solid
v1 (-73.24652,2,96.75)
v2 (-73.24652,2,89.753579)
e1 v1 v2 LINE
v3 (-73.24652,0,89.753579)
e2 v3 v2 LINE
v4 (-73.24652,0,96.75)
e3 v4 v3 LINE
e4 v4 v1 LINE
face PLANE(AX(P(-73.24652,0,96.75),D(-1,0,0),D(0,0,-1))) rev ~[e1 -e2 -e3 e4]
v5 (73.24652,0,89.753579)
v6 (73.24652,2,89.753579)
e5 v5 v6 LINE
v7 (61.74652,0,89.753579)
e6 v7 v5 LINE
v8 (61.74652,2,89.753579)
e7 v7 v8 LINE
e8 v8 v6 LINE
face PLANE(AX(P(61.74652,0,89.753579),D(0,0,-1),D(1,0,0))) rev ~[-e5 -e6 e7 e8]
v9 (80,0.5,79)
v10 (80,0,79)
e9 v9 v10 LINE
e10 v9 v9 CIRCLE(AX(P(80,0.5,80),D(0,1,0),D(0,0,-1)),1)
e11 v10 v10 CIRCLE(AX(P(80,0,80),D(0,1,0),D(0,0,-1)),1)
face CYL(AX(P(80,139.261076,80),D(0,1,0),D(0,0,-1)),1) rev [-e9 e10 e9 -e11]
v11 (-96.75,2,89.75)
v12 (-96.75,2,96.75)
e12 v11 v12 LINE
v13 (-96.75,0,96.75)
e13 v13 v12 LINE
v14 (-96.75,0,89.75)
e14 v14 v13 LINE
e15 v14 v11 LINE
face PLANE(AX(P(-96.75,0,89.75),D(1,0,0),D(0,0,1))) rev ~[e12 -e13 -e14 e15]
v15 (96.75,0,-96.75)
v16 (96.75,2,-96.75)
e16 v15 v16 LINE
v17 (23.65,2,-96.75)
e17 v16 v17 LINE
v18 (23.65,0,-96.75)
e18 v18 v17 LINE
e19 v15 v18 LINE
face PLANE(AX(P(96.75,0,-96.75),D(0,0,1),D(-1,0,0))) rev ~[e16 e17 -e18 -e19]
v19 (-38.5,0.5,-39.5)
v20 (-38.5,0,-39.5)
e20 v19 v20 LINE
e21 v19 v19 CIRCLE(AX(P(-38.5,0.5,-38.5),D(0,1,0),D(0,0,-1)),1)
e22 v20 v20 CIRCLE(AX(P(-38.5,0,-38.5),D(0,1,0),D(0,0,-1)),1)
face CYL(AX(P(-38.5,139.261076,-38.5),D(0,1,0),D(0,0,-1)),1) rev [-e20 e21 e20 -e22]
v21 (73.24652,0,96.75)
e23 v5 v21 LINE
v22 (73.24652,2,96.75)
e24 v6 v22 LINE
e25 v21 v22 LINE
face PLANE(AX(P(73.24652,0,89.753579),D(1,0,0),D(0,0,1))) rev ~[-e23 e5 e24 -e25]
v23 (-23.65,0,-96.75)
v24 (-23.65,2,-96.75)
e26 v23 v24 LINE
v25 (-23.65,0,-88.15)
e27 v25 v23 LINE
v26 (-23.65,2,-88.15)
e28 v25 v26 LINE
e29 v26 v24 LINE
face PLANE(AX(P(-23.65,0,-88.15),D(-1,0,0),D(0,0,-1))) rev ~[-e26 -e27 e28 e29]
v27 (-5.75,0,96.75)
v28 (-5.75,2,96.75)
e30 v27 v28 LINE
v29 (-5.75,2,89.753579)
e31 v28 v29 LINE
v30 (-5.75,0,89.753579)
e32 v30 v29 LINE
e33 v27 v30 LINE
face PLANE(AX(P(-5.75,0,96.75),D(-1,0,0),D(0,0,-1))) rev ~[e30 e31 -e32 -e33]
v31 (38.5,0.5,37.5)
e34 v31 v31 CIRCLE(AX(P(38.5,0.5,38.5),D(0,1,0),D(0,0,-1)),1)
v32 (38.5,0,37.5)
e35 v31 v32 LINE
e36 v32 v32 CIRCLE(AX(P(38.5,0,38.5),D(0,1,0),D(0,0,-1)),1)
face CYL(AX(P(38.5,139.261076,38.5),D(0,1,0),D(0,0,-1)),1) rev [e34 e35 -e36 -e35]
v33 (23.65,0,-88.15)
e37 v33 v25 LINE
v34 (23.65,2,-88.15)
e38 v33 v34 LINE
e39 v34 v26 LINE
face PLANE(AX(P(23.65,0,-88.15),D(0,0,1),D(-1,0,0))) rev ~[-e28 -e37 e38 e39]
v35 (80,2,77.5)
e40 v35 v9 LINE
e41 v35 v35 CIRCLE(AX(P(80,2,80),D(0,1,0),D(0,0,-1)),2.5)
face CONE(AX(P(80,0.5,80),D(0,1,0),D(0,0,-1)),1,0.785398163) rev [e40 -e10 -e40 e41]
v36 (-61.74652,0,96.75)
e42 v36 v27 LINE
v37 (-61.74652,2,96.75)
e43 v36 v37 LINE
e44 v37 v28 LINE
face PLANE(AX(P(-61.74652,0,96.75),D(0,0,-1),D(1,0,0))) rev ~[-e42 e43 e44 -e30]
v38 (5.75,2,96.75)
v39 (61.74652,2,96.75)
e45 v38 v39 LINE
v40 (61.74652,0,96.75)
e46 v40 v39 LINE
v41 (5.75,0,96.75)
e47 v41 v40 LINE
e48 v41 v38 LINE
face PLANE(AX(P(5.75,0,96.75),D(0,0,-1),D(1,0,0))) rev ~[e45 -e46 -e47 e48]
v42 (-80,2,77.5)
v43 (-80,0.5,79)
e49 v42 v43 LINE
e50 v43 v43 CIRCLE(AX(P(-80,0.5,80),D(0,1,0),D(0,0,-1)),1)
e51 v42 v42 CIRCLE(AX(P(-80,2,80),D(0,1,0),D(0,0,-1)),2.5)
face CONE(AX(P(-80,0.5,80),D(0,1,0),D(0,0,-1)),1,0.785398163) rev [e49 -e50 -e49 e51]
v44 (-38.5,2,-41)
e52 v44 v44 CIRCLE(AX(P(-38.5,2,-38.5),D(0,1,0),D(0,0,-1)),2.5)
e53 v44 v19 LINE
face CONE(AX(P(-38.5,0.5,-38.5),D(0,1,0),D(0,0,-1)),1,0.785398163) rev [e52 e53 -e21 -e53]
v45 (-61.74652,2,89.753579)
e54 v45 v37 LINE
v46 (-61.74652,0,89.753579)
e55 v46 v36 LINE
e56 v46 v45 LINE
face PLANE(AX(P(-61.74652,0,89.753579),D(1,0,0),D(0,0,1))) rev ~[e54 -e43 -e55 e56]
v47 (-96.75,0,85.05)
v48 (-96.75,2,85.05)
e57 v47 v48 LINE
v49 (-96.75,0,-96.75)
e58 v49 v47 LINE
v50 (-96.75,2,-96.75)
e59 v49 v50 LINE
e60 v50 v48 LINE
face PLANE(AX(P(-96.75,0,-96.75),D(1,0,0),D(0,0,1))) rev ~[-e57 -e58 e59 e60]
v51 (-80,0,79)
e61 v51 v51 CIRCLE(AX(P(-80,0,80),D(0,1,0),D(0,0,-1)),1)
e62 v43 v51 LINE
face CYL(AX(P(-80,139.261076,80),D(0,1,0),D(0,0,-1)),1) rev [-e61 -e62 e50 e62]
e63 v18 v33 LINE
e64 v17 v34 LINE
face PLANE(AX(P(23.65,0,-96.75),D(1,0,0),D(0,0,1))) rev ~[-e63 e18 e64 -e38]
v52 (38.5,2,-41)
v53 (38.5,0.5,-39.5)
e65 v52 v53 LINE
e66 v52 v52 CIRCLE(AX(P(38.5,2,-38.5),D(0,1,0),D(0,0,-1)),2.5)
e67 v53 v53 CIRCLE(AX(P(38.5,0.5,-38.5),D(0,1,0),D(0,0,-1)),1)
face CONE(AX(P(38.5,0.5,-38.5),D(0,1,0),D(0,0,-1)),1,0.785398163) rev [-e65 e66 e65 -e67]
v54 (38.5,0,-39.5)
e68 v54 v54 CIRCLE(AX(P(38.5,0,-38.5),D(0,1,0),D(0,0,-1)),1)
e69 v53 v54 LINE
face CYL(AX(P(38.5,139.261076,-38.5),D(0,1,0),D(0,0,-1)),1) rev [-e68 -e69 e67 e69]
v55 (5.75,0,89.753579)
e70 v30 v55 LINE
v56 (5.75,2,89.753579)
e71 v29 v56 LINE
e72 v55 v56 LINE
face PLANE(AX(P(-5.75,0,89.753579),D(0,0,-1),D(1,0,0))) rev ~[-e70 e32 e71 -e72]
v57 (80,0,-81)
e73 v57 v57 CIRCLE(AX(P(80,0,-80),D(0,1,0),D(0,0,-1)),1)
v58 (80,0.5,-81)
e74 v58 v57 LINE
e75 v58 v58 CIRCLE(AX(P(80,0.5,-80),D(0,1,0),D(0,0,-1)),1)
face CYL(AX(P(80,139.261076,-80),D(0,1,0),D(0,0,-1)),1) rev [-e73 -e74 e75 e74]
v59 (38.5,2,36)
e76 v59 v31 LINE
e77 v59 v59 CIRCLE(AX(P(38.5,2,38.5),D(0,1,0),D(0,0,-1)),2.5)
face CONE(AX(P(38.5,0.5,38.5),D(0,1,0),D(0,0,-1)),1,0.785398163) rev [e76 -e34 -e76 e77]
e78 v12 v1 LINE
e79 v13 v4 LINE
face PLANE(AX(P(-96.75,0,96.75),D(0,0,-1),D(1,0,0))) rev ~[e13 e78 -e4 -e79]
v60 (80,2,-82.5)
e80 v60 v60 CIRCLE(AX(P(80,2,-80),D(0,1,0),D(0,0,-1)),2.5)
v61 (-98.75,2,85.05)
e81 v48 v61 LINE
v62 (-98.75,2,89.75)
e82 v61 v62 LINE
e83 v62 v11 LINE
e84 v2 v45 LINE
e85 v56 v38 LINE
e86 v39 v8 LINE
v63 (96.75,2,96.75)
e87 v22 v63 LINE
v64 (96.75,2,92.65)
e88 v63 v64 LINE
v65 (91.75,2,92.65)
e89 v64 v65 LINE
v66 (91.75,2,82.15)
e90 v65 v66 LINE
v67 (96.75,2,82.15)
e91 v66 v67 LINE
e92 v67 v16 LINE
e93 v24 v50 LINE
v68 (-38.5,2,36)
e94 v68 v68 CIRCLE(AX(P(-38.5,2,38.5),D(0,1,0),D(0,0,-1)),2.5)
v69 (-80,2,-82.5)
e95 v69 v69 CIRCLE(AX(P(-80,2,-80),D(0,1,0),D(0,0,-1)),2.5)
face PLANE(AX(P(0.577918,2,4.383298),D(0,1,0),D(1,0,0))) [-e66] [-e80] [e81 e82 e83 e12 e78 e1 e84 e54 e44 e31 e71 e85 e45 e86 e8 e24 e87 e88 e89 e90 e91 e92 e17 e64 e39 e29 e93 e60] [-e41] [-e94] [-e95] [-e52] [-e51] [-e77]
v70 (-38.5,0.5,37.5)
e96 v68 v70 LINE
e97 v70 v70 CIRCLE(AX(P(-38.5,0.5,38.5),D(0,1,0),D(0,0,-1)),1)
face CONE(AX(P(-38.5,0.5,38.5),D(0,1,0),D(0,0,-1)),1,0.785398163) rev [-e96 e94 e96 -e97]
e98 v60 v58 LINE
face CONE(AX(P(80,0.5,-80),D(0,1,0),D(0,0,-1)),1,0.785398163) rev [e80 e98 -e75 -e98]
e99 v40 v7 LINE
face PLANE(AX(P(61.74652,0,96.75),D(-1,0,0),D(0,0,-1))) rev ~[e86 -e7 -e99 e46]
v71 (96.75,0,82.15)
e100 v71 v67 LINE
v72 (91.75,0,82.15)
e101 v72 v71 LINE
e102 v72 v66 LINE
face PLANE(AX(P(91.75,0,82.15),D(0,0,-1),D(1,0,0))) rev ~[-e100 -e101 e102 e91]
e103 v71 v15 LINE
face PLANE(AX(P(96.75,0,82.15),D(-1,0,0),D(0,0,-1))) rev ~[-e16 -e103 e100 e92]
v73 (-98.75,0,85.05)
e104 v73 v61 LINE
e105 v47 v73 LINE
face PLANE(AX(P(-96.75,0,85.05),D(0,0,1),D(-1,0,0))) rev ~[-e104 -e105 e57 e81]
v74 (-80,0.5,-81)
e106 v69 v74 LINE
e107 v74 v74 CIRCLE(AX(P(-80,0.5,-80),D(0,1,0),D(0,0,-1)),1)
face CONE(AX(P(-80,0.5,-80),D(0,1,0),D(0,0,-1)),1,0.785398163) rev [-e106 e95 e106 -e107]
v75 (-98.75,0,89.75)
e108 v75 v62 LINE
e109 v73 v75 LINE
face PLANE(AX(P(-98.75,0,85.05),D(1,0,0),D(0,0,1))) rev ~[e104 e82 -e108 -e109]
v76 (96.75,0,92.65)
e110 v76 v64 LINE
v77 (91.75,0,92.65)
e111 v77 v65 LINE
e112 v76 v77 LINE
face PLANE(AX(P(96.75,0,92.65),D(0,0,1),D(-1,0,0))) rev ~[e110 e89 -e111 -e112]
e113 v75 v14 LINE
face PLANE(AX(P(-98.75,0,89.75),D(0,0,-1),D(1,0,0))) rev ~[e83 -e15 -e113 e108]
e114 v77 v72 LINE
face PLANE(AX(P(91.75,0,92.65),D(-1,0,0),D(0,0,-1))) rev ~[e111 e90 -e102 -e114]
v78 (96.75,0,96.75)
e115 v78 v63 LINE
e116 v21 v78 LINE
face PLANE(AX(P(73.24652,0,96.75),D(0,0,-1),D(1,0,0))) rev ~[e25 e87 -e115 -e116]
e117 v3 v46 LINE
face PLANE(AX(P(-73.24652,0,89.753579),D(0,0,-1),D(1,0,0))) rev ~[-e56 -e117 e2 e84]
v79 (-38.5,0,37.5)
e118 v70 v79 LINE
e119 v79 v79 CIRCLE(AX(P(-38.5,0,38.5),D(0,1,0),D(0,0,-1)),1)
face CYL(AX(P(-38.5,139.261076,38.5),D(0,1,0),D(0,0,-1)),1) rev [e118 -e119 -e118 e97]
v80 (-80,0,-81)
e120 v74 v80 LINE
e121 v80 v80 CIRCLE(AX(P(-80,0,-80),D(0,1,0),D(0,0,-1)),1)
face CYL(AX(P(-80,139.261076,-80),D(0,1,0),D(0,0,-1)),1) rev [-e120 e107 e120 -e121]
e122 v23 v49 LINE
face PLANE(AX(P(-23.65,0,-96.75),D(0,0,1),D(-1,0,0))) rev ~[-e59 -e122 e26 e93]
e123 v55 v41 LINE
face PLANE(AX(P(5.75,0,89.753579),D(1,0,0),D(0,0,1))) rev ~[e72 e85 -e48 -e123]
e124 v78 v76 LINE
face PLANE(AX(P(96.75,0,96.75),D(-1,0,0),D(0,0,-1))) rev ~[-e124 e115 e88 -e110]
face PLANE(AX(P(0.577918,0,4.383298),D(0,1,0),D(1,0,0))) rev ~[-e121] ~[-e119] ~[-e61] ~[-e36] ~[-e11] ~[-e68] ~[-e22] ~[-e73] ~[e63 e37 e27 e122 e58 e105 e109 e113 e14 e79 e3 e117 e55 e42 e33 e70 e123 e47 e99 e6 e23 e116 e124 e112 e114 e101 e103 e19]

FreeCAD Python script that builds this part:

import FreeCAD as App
import Part
import Sketcher


def edges_at(feature, points):
    """Names of the edges that pass closest to the given points."""
    edges = feature.Shape.Edges
    near = lambda p: min(range(len(edges)), key=lambda i: edges[i].distToShape(Part.Vertex(*p))[0])
    return sorted({f"Edge{near(p) + 1}" for p in points})


def add_polygon(sketch, points):
    """Adds a closed chain of lines whose ends are joined by coincident constraints."""
    first, n = sketch.GeometryCount, len(points)
    for a, b in zip(points, points[1:] + points[:1]):
        sketch.addGeometry(Part.LineSegment(App.Vector(*a, 0), App.Vector(*b, 0)), False)
    for i in range(n):
        sketch.addConstraint(Sketcher.Constraint("Coincident", first + i, 2, first + (i + 1) % n, 1))

doc = App.newDocument("Part")
params = doc.addObject("Spreadsheet::Sheet", "Params")
for row, (alias, value) in enumerate([
    ("sketch1_width", "5 mm"),
    ("sketch1_width2", "2 mm"),
    ("sketch1_height", "7 mm"),
    ("sketch1_width3", "11.5 mm"),
    ("sketch1_width4", "73.1 mm"),
    ("pad1_length", "2 mm"),
    ("sketch2_diameter", "2 mm"),
    ("chamfer_size", "1.5 mm"),
], start=1):
    params.set(f"A{row}", alias)
    params.set(f"B{row}", "=" + value)
    params.setAlias(f"B{row}", alias)

body = doc.addObject("PartDesign::Body", "Body")

# Sketch on XZ plane
sketch1 = body.newObject("Sketcher::SketchObject", "Sketch")
sketch1.AttachmentSupport = (doc.getObject("XZ_Plane"), [""])
sketch1.MapMode = "FlatFace"
add_polygon(sketch1, [(5.8, 96.8), (61.7, 96.8), (61.7, 89.8), (73.2, 89.8), (73.2, 96.8), (96.8, 96.8), (96.8, 92.7), (91.8, 92.7), (91.8, 82.2), (96.8, 82.2), (96.8, -96.8), (23.6, -96.8), (23.6, -88.2), (-23.6, -88.2), (-23.6, -96.8), (-96.8, -96.8), (-96.8, 85), (-98.8, 85), (-98.8, 89.8), (-96.8, 89.8), (-96.8, 96.8), (-73.2, 96.8), (-73.2, 89.8), (-61.7, 89.8), (-61.7, 96.8), (-5.8, 96.8), (-5.8, 89.8), (5.8, 89.8)])  # lines 0-27
sketch1.addConstraint(Sketcher.Constraint("Horizontal", 0))
sketch1.addConstraint(Sketcher.Constraint("Vertical", 1))
sketch1.addConstraint(Sketcher.Constraint("Horizontal", 2))
sketch1.addConstraint(Sketcher.Constraint("Vertical", 3))
sketch1.addConstraint(Sketcher.Constraint("Horizontal", 4))
sketch1.addConstraint(Sketcher.Constraint("Vertical", 5))
sketch1.addConstraint(Sketcher.Constraint("Horizontal", 6))
sketch1.addConstraint(Sketcher.Constraint("Vertical", 7))
sketch1.addConstraint(Sketcher.Constraint("Horizontal", 8))
sketch1.addConstraint(Sketcher.Constraint("Vertical", 9))
sketch1.addConstraint(Sketcher.Constraint("Horizontal", 10))
sketch1.addConstraint(Sketcher.Constraint("Vertical", 11))
sketch1.addConstraint(Sketcher.Constraint("Horizontal", 12))
sketch1.addConstraint(Sketcher.Constraint("Vertical", 13))
sketch1.addConstraint(Sketcher.Constraint("Horizontal", 14))
sketch1.addConstraint(Sketcher.Constraint("Vertical", 15))
sketch1.addConstraint(Sketcher.Constraint("Horizontal", 16))
sketch1.addConstraint(Sketcher.Constraint("Vertical", 17))
sketch1.addConstraint(Sketcher.Constraint("Horizontal", 18))
sketch1.addConstraint(Sketcher.Constraint("Vertical", 19))
sketch1.addConstraint(Sketcher.Constraint("Horizontal", 20))
sketch1.addConstraint(Sketcher.Constraint("Vertical", 21))
sketch1.addConstraint(Sketcher.Constraint("Horizontal", 22))
sketch1.addConstraint(Sketcher.Constraint("Vertical", 23))
sketch1.addConstraint(Sketcher.Constraint("Horizontal", 24))
sketch1.addConstraint(Sketcher.Constraint("Vertical", 25))
sketch1.addConstraint(Sketcher.Constraint("Horizontal", 26))
sketch1.addConstraint(Sketcher.Constraint("Vertical", 27))
sketch1.addConstraint(Sketcher.Constraint("Symmetric", 4, 2, 14, 2, -1, 1))
sketch1.addConstraint(Sketcher.Constraint("Symmetric", 9, 2, 19, 2, -1, 1))
sketch1.addConstraint(Sketcher.Constraint("Symmetric", 10, 2, 13, 2, -2))
sketch1.addConstraint(Sketcher.Constraint("Symmetric", 2, 2, 21, 2, -2))
sketch1.addConstraint(Sketcher.Constraint("Symmetric", 0, 2, 23, 2, -2))
sketch1.addConstraint(Sketcher.Constraint("Horizontal", 0, 2, 3, 2))
sketch1.addConstraint(Sketcher.Constraint("Horizontal", 22, 2, 25, 2))
sketch1.addConstraint(Sketcher.Constraint("Vertical", 5, 2, 8, 2))
sketch1.addConstraint(Sketcher.Constraint("Equal", 0, 24))
sketch1.addConstraint(Sketcher.Constraint("Equal", 22, 26))
sketch1.addConstraint(Sketcher.Constraint("DistanceX", 6, 2, 6, 1, 5.0))
sketch1.addConstraint(Sketcher.Constraint("DistanceX", 16, 2, 16, 1, 2.0))
sketch1.addConstraint(Sketcher.Constraint("DistanceY", 19, 1, 19, 2, 7.0))
sketch1.addConstraint(Sketcher.Constraint("DistanceX", 2, 1, 2, 2, 11.5))
sketch1.addConstraint(Sketcher.Constraint("DistanceX", 10, 2, 10, 1, 73.1))
sketch1.addConstraint(Sketcher.Constraint("DistanceX", 12, 2, 12, 1, 47.3))
sketch1.addConstraint(Sketcher.Constraint("DistanceY", 5, 2, 5, 1, 4.1))
sketch1.addConstraint(Sketcher.Constraint("DistanceY", 7, 2, 7, 1, 10.5))
sketch1.addConstraint(Sketcher.Constraint("DistanceY", 9, 2, 9, 1, 178.9))
sketch1.addConstraint(Sketcher.Constraint("DistanceY", 11, 1, 11, 2, 8.6))
sketch1.addConstraint(Sketcher.Constraint("DistanceY", 15, 1, 15, 2, 181.8))
sketch1.addConstraint(Sketcher.Constraint("DistanceX", 0, 1, 0, 2, 55.99652))
sketch1.addConstraint(Sketcher.Constraint("DistanceY", 1, 2, 1, 1, 6.996421))
sketch1.setExpression("Constraints[66]", "Params.sketch1_width")
sketch1.setExpression("Constraints[67]", "Params.sketch1_width2")
sketch1.setExpression("Constraints[68]", "Params.sketch1_height")
sketch1.setExpression("Constraints[69]", "Params.sketch1_width3")
sketch1.setExpression("Constraints[70]", "Params.sketch1_width4")
pad1 = body.newObject("PartDesign::Pad", "Pad")
pad1.Profile = sketch1
pad1.setExpression("Length", "Params.pad1_length")
pad1.Reversed = True

# Sketch on XZ plane
sketch2 = body.newObject("Sketcher::SketchObject", "Sketch001")
sketch2.AttachmentSupport = (doc.getObject("XZ_Plane"), [""])
sketch2.MapMode = "FlatFace"
sketch2.addGeometry(Part.Circle(App.Vector(80, 80, 0), App.Vector(0, 0, 1), 1), False)
sketch2.addGeometry(Part.Circle(App.Vector(-80, 80, 0), App.Vector(0, 0, 1), 1), False)
sketch2.addGeometry(Part.Circle(App.Vector(-38.5, 38.5, 0), App.Vector(0, 0, 1), 1), False)
sketch2.addGeometry(Part.Circle(App.Vector(38.5, 38.5, 0), App.Vector(0, 0, 1), 1), False)
sketch2.addGeometry(Part.Circle(App.Vector(80, -80, 0), App.Vector(0, 0, 1), 1), False)
sketch2.addGeometry(Part.Circle(App.Vector(-80, -80, 0), App.Vector(0, 0, 1), 1), False)
sketch2.addGeometry(Part.Circle(App.Vector(38.5, -38.5, 0), App.Vector(0, 0, 1), 1), False)
sketch2.addGeometry(Part.Circle(App.Vector(-38.5, -38.5, 0), App.Vector(0, 0, 1), 1), False)
sketch2.addConstraint(Sketcher.Constraint("Equal", 0, 1))
sketch2.addConstraint(Sketcher.Constraint("Equal", 1, 2))
sketch2.addConstraint(Sketcher.Constraint("Equal", 2, 3))
sketch2.addConstraint(Sketcher.Constraint("Equal", 3, 4))
sketch2.addConstraint(Sketcher.Constraint("Equal", 4, 5))
sketch2.addConstraint(Sketcher.Constraint("Equal", 5, 6))
sketch2.addConstraint(Sketcher.Constraint("Equal", 6, 7))
sketch2.addConstraint(Sketcher.Constraint("Symmetric", 1, 3, 4, 3, -1, 1))
sketch2.addConstraint(Sketcher.Constraint("Symmetric", 0, 3, 5, 3, -1, 1))
sketch2.addConstraint(Sketcher.Constraint("Symmetric", 2, 3, 6, 3, -1, 1))
sketch2.addConstraint(Sketcher.Constraint("Symmetric", 3, 3, 7, 3, -1, 1))
sketch2.addConstraint(Sketcher.Constraint("Symmetric", 0, 3, 1, 3, -2))
sketch2.addConstraint(Sketcher.Constraint("Symmetric", 2, 3, 3, 3, -2))
sketch2.addConstraint(Sketcher.Constraint("Diameter", 0, 2.0))
sketch2.addConstraint(Sketcher.Constraint("DistanceX", -1, 1, 0, 3, 80.0))
sketch2.addConstraint(Sketcher.Constraint("DistanceY", -1, 1, 0, 3, 80.0))
sketch2.addConstraint(Sketcher.Constraint("DistanceX", 2, 3, 3, 3, 77.0))
sketch2.addConstraint(Sketcher.Constraint("DistanceY", 6, 3, 3, 3, 77.0))
sketch2.setExpression("Constraints[13]", "Params.sketch2_diameter")
pocket1 = body.newObject("PartDesign::Pocket", "Pocket")
pocket1.Profile = sketch2
pocket1.Type = "ThroughAll"
pocket1.Midplane = True
doc.recompute()

chamfer = body.newObject("PartDesign::Chamfer", "Chamfer")
chamfer.Base = (pocket1, edges_at(pocket1, [
    (-80, 2, 81),
    (-38.5, 2, 39.5),
    (38.5, 2, 39.5),
    (80, 2, -79),
    (-38.5, 2, -37.5),
    (38.5, 2, -37.5),
    (-80, 2, -79),
    (80, 2, 81),
]))
chamfer.setExpression("Size", "Params.chamfer_size")

doc.recompute()
